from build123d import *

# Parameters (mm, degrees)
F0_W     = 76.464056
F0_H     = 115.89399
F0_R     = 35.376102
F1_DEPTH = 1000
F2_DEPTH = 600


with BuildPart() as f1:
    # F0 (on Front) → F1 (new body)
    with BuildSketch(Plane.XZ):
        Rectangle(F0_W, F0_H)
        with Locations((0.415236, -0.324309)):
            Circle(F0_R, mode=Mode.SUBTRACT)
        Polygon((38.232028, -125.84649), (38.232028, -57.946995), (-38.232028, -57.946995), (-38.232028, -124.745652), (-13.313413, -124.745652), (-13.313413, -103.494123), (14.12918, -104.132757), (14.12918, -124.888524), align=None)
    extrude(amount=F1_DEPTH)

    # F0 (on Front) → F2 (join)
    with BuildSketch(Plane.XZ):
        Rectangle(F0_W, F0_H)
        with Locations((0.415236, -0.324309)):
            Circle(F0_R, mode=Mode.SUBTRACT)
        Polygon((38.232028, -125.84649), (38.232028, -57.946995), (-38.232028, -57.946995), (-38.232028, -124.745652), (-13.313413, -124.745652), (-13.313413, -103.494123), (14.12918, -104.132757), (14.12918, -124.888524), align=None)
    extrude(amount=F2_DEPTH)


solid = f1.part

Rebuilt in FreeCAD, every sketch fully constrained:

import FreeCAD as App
import Part
import Sketcher
from FreeCAD import Vector


def add_polygon(sketch, points):
    """Adds a closed chain of lines whose ends are joined by coincident constraints."""
    first, n = sketch.GeometryCount, len(points)
    for a, b in zip(points, points[1:] + points[:1]):
        sketch.addGeometry(Part.LineSegment(App.Vector(*a, 0), App.Vector(*b, 0)), False)
    for i in range(n):
        sketch.addConstraint(Sketcher.Constraint("Coincident", first + i, 2, first + (i + 1) % n, 1))

doc = App.newDocument("Part")
body = doc.addObject("PartDesign::Body", "Body")

# Sketch on XZ plane
sketch1 = doc.addObject("Sketcher::SketchObject", "Sketch")
body.addObject(sketch1)
sketch1.AttachmentSupport = (doc.XZ_Plane, [""])
sketch1.MapMode = "FlatFace"
add_polygon(sketch1, [(-38, 58), (-38, -125), (-13, -125), (-13, -103), (14, -104), (14, -125), (38, -126), (38, 58)])  # lines 0-7
sketch1.addGeometry(Part.Circle(Vector(0, 0, 0), Vector(0, 0, 1), 35), False)  # 8
sketch1.addConstraint(Sketcher.Constraint("Vertical", 0))
sketch1.addConstraint(Sketcher.Constraint("Horizontal", 1))
sketch1.addConstraint(Sketcher.Constraint("Vertical", 2))
sketch1.addConstraint(Sketcher.Constraint("Vertical", 4))
sketch1.addConstraint(Sketcher.Constraint("Vertical", 6))
sketch1.addConstraint(Sketcher.Constraint("Horizontal", 7))
sketch1.addConstraint(Sketcher.Constraint("Diameter", 8, 70.752204))
sketch1.addConstraint(Sketcher.Constraint("DistanceY", 2, 1, 2, 2, 21.251529))
sketch1.addConstraint(Sketcher.Constraint("DistanceY", 4, 2, 2, 2, 21.394401))
sketch1.addConstraint(Sketcher.Constraint("DistanceX", 1, 1, 1, 2, 24.918615))
sketch1.addConstraint(Sketcher.Constraint("DistanceX", 7, 2, 7, 1, 76.464056))
sketch1.addConstraint(Sketcher.Constraint("DistanceY", 0, 2, 0, 1, 182.692647))
sketch1.addConstraint(Sketcher.Constraint("DistanceY", 4, 2, 4, 1, 20.755767))
sketch1.addConstraint(Sketcher.Constraint("DistanceY", 6, 1, 6, 2, 183.793485))
sketch1.addConstraint(Sketcher.Constraint("DistanceY", 8, 3, -1, 1, 0.324309))
sketch1.addConstraint(Sketcher.Constraint("DistanceX", -1, 1, 3, 2, 14.12918))
sketch1.addConstraint(Sketcher.Constraint("DistanceY", 5, 2, -1, 1, 125.84649))
sketch1.addConstraint(Sketcher.Constraint("DistanceX", 1, 2, 8, 3, 13.728649))
sketch1.addConstraint(Sketcher.Constraint("DistanceX", 4, 2, 5, 2, 24.102848))
pad1 = doc.addObject("PartDesign::Pad", "Pad")
body.addObject(pad1)
pad1.Profile = sketch1
pad1.Length = 1000

# Sketch on XZ plane
sketch2 = doc.addObject("Sketcher::SketchObject", "Sketch001")
body.addObject(sketch2)
sketch2.AttachmentSupport = (doc.XZ_Plane, [""])
sketch2.MapMode = "FlatFace"
add_polygon(sketch2, [(-38, 58), (-38, -125), (-13, -125), (-13, -103), (14, -104), (14, -125), (38, -126), (38, 58)])  # lines 0-7
sketch2.addGeometry(Part.Circle(Vector(0, 0, 0), Vector(0, 0, 1), 35), False)  # 8
sketch2.addConstraint(Sketcher.Constraint("Vertical", 0))
sketch2.addConstraint(Sketcher.Constraint("Horizontal", 1))
sketch2.addConstraint(Sketcher.Constraint("Vertical", 2))
sketch2.addConstraint(Sketcher.Constraint("Vertical", 4))
sketch2.addConstraint(Sketcher.Constraint("Vertical", 6))
sketch2.addConstraint(Sketcher.Constraint("Horizontal", 7))
sketch2.addConstraint(Sketcher.Constraint("Diameter", 8, 70.752204))
sketch2.addConstraint(Sketcher.Constraint("DistanceY", 2, 1, 2, 2, 21.251529))
sketch2.addConstraint(Sketcher.Constraint("DistanceY", 4, 2, 2, 2, 21.394401))
sketch2.addConstraint(Sketcher.Constraint("DistanceX", 1, 1, 1, 2, 24.918615))
sketch2.addConstraint(Sketcher.Constraint("DistanceX", 7, 2, 7, 1, 76.464056))
sketch2.addConstraint(Sketcher.Constraint("DistanceY", 0, 2, 0, 1, 182.692647))
sketch2.addConstraint(Sketcher.Constraint("DistanceY", 4, 2, 4, 1, 20.755767))
sketch2.addConstraint(Sketcher.Constraint("DistanceY", 6, 1, 6, 2, 183.793485))
sketch2.addConstraint(Sketcher.Constraint("DistanceY", 8, 3, -1, 1, 0.324309))
sketch2.addConstraint(Sketcher.Constraint("DistanceX", -1, 1, 3, 2, 14.12918))
sketch2.addConstraint(Sketcher.Constraint("DistanceY", 5, 2, -1, 1, 125.84649))
sketch2.addConstraint(Sketcher.Constraint("DistanceX", 1, 2, 8, 3, 13.728649))
sketch2.addConstraint(Sketcher.Constraint("DistanceX", 4, 2, 5, 2, 24.102848))
pad2 = doc.addObject("PartDesign::Pad", "Pad001")
body.addObject(pad2)
pad2.Profile = sketch2
pad2.Length = 600

doc.recompute()
